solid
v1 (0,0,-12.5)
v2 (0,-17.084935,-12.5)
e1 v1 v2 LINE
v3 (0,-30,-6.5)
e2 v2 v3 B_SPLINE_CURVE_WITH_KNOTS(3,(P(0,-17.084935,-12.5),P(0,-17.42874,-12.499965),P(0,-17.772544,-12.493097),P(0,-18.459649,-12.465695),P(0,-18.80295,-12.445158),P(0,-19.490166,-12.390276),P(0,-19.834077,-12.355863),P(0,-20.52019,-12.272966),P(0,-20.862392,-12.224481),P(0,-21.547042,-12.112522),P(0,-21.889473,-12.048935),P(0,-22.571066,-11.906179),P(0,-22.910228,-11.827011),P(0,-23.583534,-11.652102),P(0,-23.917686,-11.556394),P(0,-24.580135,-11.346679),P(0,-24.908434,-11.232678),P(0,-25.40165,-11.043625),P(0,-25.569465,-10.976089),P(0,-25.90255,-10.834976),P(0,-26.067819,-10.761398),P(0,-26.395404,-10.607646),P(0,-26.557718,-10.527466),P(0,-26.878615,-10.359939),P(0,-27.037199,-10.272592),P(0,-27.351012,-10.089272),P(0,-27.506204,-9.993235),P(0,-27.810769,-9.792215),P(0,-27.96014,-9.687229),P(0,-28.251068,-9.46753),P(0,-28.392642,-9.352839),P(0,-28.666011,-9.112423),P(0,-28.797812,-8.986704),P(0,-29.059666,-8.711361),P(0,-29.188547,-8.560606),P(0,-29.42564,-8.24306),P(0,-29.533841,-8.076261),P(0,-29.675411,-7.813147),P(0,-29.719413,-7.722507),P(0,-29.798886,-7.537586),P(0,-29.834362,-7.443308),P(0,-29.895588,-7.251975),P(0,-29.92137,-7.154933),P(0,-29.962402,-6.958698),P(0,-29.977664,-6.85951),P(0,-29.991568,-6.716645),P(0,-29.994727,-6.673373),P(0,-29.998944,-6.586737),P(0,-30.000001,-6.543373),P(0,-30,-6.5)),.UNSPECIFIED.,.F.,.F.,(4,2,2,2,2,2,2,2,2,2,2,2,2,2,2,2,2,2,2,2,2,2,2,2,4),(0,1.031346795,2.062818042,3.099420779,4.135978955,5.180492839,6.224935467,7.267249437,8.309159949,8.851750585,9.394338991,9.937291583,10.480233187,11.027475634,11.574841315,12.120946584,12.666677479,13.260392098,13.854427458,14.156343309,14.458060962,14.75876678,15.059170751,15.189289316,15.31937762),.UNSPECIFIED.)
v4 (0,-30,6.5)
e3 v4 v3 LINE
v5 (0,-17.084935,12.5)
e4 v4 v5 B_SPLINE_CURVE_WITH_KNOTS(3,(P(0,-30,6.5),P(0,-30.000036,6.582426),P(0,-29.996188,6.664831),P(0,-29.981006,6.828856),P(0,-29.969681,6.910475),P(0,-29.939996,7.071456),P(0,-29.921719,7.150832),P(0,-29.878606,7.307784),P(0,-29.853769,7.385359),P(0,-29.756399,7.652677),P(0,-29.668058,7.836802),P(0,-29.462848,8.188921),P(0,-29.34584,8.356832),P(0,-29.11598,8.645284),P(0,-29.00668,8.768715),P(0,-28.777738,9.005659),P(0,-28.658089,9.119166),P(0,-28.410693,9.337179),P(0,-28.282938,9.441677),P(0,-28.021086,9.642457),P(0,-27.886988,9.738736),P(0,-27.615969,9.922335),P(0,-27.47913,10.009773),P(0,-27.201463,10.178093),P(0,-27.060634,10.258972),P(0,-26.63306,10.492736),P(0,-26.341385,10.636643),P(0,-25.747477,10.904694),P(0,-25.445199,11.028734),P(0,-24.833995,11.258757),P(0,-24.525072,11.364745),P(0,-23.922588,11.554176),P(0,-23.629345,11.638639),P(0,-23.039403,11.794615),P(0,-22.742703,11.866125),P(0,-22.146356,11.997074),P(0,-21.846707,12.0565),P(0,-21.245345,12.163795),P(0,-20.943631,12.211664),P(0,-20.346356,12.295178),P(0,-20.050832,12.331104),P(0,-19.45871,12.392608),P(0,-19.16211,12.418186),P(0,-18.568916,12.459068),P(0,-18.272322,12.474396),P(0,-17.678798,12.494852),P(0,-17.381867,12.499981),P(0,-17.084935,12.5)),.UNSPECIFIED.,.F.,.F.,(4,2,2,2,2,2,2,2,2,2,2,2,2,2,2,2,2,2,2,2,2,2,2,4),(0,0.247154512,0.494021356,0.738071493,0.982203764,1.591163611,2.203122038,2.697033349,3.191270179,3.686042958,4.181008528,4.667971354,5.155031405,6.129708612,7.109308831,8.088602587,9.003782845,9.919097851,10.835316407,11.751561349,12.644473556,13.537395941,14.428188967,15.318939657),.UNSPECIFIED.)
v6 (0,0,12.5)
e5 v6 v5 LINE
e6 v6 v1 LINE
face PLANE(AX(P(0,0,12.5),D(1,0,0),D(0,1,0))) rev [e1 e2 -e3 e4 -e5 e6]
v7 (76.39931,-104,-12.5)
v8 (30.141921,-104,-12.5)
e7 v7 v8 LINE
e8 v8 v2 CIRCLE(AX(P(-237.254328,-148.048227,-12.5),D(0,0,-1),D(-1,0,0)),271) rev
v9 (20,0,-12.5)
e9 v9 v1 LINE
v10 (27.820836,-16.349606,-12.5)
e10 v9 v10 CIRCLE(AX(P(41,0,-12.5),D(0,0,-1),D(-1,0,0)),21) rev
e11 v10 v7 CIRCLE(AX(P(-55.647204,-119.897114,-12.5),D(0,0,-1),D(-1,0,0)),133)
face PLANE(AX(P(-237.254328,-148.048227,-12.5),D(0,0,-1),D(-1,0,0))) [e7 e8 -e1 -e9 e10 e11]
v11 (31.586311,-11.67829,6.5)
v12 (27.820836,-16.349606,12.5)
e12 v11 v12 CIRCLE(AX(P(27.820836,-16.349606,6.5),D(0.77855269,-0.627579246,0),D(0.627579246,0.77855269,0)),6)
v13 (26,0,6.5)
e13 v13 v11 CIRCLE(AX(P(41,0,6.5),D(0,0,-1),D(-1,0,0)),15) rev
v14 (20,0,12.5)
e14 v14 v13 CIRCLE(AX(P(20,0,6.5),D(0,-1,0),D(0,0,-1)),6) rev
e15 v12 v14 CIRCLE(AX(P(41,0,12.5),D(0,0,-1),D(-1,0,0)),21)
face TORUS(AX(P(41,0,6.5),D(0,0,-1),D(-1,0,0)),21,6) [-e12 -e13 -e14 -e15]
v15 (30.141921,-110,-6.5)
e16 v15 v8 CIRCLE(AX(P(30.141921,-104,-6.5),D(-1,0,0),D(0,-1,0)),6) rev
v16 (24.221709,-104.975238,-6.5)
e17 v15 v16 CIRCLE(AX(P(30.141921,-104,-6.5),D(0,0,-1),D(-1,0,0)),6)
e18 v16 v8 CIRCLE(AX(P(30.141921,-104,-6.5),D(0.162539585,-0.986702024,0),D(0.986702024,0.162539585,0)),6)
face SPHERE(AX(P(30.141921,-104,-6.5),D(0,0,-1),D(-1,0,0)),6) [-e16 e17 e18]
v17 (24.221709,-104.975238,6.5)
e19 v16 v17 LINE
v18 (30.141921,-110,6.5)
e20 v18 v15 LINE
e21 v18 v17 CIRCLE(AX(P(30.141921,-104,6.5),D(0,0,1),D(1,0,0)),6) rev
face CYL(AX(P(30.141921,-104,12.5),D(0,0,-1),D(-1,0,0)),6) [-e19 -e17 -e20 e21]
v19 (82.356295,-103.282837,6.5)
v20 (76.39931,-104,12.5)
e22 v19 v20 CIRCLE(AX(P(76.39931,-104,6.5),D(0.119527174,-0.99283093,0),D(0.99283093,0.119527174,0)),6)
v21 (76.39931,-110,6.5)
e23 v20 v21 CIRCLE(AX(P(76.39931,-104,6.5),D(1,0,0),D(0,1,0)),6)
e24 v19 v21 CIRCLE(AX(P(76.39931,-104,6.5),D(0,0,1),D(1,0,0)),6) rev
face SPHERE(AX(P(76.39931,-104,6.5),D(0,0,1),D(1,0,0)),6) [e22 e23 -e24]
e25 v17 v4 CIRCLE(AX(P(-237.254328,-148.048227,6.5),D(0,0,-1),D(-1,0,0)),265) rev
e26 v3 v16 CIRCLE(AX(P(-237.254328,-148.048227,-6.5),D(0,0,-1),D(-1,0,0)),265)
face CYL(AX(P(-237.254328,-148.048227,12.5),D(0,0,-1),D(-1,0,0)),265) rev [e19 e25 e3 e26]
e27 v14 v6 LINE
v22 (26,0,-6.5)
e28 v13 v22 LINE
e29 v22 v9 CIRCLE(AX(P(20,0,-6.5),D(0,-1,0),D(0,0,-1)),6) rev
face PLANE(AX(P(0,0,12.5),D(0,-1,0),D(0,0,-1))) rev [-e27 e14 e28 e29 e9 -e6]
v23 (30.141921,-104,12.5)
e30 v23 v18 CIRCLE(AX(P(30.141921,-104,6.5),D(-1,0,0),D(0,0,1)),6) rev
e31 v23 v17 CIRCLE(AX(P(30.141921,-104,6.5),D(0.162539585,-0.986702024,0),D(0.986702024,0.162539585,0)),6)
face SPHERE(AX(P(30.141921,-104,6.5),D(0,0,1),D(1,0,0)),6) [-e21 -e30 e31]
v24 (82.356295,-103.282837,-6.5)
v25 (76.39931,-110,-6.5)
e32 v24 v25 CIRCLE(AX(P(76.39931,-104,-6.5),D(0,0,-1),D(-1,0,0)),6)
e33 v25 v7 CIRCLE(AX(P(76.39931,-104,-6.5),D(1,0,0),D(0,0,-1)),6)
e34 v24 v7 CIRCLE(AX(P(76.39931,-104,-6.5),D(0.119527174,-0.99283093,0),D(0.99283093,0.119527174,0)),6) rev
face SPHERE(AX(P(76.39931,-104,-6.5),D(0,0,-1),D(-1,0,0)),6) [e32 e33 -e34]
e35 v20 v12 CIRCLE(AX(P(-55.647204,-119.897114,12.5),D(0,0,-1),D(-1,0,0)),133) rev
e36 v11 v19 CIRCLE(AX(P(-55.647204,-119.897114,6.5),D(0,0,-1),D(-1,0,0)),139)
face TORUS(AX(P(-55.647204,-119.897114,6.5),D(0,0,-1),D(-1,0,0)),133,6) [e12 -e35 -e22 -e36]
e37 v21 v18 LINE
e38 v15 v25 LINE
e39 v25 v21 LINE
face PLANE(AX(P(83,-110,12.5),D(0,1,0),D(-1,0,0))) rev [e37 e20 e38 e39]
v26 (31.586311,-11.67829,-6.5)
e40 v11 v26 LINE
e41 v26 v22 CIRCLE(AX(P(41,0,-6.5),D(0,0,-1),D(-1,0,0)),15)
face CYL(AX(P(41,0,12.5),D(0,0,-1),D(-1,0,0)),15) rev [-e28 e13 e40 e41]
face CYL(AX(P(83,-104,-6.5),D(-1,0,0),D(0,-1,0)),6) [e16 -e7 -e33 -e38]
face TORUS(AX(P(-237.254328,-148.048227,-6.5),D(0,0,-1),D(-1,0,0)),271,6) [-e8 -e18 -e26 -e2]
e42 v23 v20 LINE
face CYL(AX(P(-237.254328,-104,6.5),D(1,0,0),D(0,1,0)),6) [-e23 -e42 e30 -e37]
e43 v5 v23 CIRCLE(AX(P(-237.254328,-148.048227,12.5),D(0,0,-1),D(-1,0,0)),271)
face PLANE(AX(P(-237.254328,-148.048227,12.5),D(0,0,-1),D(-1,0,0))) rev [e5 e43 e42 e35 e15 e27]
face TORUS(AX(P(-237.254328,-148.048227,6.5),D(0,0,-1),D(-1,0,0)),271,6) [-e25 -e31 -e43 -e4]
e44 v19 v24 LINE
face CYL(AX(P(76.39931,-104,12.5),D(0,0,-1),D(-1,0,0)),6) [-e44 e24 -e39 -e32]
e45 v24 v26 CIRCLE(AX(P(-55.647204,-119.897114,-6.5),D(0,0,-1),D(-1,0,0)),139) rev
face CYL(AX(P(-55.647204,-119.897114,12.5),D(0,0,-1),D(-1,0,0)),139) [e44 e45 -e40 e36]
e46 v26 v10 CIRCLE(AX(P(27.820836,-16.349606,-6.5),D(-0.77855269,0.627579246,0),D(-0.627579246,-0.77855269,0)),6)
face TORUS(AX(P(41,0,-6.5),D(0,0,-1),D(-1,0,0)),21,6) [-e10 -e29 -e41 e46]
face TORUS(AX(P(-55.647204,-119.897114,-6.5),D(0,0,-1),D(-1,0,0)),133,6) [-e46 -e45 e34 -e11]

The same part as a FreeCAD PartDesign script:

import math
import FreeCAD as App
import Part
import Sketcher
Q = App.Units.Quantity


def edges_at(feature, points):
    """Names of the edges that pass closest to the given points."""
    edges = feature.Shape.Edges
    near = lambda p: min(range(len(edges)), key=lambda i: edges[i].distToShape(Part.Vertex(*p))[0])
    return sorted({f"Edge{near(p) + 1}" for p in points})

doc = App.newDocument("Part")
body = doc.addObject("PartDesign::Body", "Body")

# Sketch on XY plane
sketch1 = body.newObject("Sketcher::SketchObject", "Sketch")
sketch1.AttachmentSupport = (doc.getObject("XY_Plane"), [""])
sketch1.MapMode = "FlatFace"
sketch1.addGeometry([
    Part.LineSegment(App.Vector(26, 0, 0), App.Vector(0, 0, 0)),  # 0
    Part.LineSegment(App.Vector(0, 0, 0), App.Vector(0, -30, 0)),  # 1
    Part.ArcOfCircle(Part.Circle(App.Vector(-237, -148, 0), App.Vector(0, 0, 1), 265), math.radians(8.25), math.radians(26.45)),  # 2
    Part.LineSegment(App.Vector(25, -110, 0), App.Vector(83, -110, 0)),  # 3
    Part.ArcOfCircle(Part.Circle(App.Vector(-56, -120, 0), App.Vector(0, 0, 1), 139), math.radians(4), math.radians(51)),  # 4
    Part.ArcOfCircle(Part.Circle(App.Vector(41, 0, 0), App.Vector(0, 0, 1), 15), math.radians(180), math.radians(231)),  # 5
], False)
sketch1.addConstraint([
    Sketcher.Constraint("Coincident", 0, 2, 1, 1),
    Sketcher.Constraint("Coincident", 1, 2, 2, 2),
    Sketcher.Constraint("Coincident", 2, 1, 3, 1),
    Sketcher.Constraint("Coincident", 3, 2, 4, 1),
    Sketcher.Constraint("Tangent", 4, 2, 5, 2),
    Sketcher.Constraint("Coincident", 5, 1, 0, 1),
    Sketcher.Constraint("Horizontal", 0),
    Sketcher.Constraint("Vertical", 1),
    Sketcher.Constraint("Horizontal", 3),
    Sketcher.Constraint("Coincident", 0, 2, -1, 1),
    Sketcher.Constraint("PointOnObject", 5, 3, -1),
    Sketcher.Constraint("Radius", 2, Q("265 mm")),
    Sketcher.Constraint("Radius", 4, Q("139 mm")),
    Sketcher.Constraint("Radius", 5, Q("15 mm")),
    Sketcher.Constraint("DistanceX", 0, 2, 0, 1, Q("26 mm")),
    Sketcher.Constraint("DistanceX", 3, 1, 3, 2, Q("58 mm")),
    Sketcher.Constraint("DistanceY", 1, 2, 1, 1, Q("30 mm")),
    Sketcher.Constraint("DistanceX", -1, 1, 2, 1, Q("25 mm")),
    Sketcher.Constraint("DistanceY", 2, 1, -1, 1, Q("110 mm")),
])
pad1 = body.newObject("PartDesign::Pad", "Pad")
pad1.Profile = sketch1
pad1.Length = 25
pad1.Midplane = True
doc.recompute()

fillet = body.newObject("PartDesign::Fillet", "Fillet")
fillet.Base = (pad1, edges_at(pad1, [
    (83, -110, 0),
    (25, -110, 0),
    (54, -110, 12.5),
    (67.529, -55.487, 12.5),
    (27.468, -6.473, 12.5),
    (27.468, -6.473, -12.5),
    (67.529, -55.487, -12.5),
    (54, -110, -12.5),
    (15.683, -69.005, -12.5),
    (15.683, -69.005, 12.5),
]))
fillet.Radius = 6

doc.recompute()
